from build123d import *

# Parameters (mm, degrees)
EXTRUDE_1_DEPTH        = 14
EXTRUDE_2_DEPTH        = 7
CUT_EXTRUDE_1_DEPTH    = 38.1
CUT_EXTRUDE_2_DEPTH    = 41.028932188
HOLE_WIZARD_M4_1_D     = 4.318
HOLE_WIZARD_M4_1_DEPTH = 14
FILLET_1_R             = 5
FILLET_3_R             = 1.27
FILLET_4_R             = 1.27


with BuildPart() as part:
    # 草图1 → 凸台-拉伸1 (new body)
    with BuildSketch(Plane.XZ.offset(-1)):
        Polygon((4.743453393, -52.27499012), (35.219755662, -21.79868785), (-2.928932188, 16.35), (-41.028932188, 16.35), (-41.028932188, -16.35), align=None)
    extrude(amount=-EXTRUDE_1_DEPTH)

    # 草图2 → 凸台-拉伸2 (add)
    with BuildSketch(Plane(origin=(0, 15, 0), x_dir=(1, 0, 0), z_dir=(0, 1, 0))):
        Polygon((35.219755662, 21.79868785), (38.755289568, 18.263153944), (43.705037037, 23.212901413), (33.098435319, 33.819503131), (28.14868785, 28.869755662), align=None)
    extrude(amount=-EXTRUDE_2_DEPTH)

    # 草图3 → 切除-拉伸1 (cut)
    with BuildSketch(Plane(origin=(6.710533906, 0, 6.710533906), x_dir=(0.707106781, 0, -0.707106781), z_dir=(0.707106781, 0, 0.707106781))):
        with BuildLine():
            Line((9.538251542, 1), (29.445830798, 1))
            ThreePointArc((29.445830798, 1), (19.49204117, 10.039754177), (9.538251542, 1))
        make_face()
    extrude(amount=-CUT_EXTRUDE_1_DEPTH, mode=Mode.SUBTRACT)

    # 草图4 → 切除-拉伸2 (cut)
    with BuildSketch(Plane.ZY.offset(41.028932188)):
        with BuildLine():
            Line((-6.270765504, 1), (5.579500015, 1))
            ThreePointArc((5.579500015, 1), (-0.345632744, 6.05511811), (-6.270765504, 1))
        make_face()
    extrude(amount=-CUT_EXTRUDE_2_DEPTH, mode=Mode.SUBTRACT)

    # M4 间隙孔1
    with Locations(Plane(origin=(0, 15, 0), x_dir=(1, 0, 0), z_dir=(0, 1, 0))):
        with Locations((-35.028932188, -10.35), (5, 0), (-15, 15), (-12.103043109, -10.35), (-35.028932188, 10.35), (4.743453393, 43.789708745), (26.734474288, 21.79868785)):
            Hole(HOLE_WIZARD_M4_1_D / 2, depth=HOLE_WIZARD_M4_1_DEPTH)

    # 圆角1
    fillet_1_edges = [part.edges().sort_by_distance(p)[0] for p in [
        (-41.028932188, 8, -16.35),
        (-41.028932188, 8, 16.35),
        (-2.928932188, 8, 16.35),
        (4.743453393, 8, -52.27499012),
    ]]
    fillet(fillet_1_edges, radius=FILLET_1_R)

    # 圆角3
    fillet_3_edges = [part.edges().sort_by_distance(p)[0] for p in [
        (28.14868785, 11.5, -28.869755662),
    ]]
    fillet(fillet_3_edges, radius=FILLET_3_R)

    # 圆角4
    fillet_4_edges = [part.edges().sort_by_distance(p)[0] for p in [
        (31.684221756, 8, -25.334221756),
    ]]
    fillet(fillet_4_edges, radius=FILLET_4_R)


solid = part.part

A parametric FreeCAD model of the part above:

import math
import FreeCAD as App
import Part
import Sketcher
Q = App.Units.Quantity


def edges_at(feature, points):
    """Names of the edges that pass closest to the given points."""
    edges = feature.Shape.Edges
    near = lambda p: min(range(len(edges)), key=lambda i: edges[i].distToShape(Part.Vertex(*p))[0])
    return sorted({f"Edge{near(p) + 1}" for p in points})

doc = App.newDocument("Part")
params = doc.addObject("Spreadsheet::Sheet", "Params")
for row, (alias, value) in enumerate([
    ("sketch1_width", "38.1 mm"),
    ("sketch1_height", "32.7 mm"),
    ("sketch1_length", "43.1 mm"),
    ("pad1_length", "14 mm"),
    ("sketch2_length", "7 mm"),
    ("sketch2_length2", "15 mm"),
    ("pad2_length", "7 mm"),
    ("sketch3_radius", "10 mm"),
    ("pocket1_length", "38.1 mm"),
    ("sketch4_radius", "6 mm"),
    ("pocket2_length", "41.028932 mm"),
    ("hole_diameter", "4.318 mm"),
    ("hole_depth", "14 mm"),
    ("fillet_radius", "5 mm"),
    ("fillet2_radius", "1.27 mm"),
    ("fillet3_radius", "1.27 mm"),
], start=1):
    params.set(f"A{row}", alias)
    params.set(f"B{row}", "=" + value)
    params.setAlias(f"B{row}", alias)

body = doc.addObject("PartDesign::Body", "Body")

sketch1 = body.newObject("Sketcher::SketchObject", "Sketch")
sketch1.AttachmentSupport = (doc.getObject("XZ_Plane"), [""])
sketch1.MapMode = "FlatFace"
sketch1.AttachmentOffset = App.Placement(App.Vector(0, 0, -1), App.Rotation())
sketch1.addGeometry([
    Part.LineSegment(App.Vector(5, -52, 0), App.Vector(35, -22, 0)),
    Part.LineSegment(App.Vector(35, -22, 0), App.Vector(-3, 16, 0)),
    Part.LineSegment(App.Vector(-3, 16, 0), App.Vector(-41, 16, 0)),
    Part.LineSegment(App.Vector(-41, 16, 0), App.Vector(-41, -16, 0)),
    Part.LineSegment(App.Vector(-41, -16, 0), App.Vector(5, -52, 0)),
], False)
sketch1.addConstraint([
    Sketcher.Constraint("Coincident", 0, 2, 1, 1),
    Sketcher.Constraint("Coincident", 1, 2, 2, 1),
    Sketcher.Constraint("Coincident", 2, 2, 3, 1),
    Sketcher.Constraint("Coincident", 3, 2, 4, 1),
    Sketcher.Constraint("Coincident", 4, 2, 0, 1),
    Sketcher.Constraint("Horizontal", 2),
    Sketcher.Constraint("Vertical", 3),
    Sketcher.Constraint("Perpendicular", 0, 1),
    Sketcher.Constraint("Angle", 0, Q("45 deg")),
    Sketcher.Constraint("DistanceX", 2, 2, 2, 1, Q("38.1 mm")),
    Sketcher.Constraint("DistanceY", 3, 2, 3, 1, Q("32.7 mm")),
    Sketcher.Constraint("Distance", 0, Q("43.1 mm")),
    Sketcher.Constraint("DistanceY", -1, 1, 1, 2, Q("16.35 mm")),
    Sketcher.Constraint("Distance", 1, Q("53.950392 mm")),
    Sketcher.Constraint("DistanceX", -1, 1, 0, 2, Q("35.219756 mm")),
])
sketch1.setExpression("Constraints[9]", "Params.sketch1_width")
sketch1.setExpression("Constraints[10]", "Params.sketch1_height")
sketch1.setExpression("Constraints[11]", "Params.sketch1_length")
pad1 = body.newObject("PartDesign::Pad", "Pad")
pad1.Profile = sketch1
pad1.setExpression("Length", "Params.pad1_length")
pad1.Reversed = True

sketch2 = body.newObject("Sketcher::SketchObject", "Sketch001")
sketch2.AttachmentSupport = (doc.getObject("XZ_Plane"), [""])
sketch2.MapMode = "FlatFace"
sketch2.AttachmentOffset = App.Placement(App.Vector(0, 0, -15), App.Rotation())
sketch2.addGeometry([
    Part.LineSegment(App.Vector(39, -18, 0), App.Vector(44, -23, 0)),
    Part.LineSegment(App.Vector(44, -23, 0), App.Vector(33, -34, 0)),
    Part.LineSegment(App.Vector(33, -34, 0), App.Vector(28, -29, 0)),
    Part.LineSegment(App.Vector(28, -29, 0), App.Vector(39, -18, 0)),
], False)
sketch2.addConstraint([
    Sketcher.Constraint("Coincident", 0, 2, 1, 1),
    Sketcher.Constraint("Coincident", 1, 2, 2, 1),
    Sketcher.Constraint("Coincident", 2, 2, 3, 1),
    Sketcher.Constraint("Coincident", 3, 2, 0, 1),
    Sketcher.Constraint("Perpendicular", 0, 1),
    Sketcher.Constraint("Perpendicular", 1, 2),
    Sketcher.Constraint("Perpendicular", 2, 3),
    Sketcher.Constraint("Angle", 0, Q("-45 deg")),
    Sketcher.Constraint("Distance", 0, Q("7 mm")),
    Sketcher.Constraint("Distance", 1, Q("15 mm")),
    Sketcher.Constraint("DistanceY", 0, 2, -1, 1, Q("23.212901 mm")),
    Sketcher.Constraint("DistanceX", -1, 1, 3, 2, Q("38.75529 mm")),
])
sketch2.setExpression("Constraints[8]", "Params.sketch2_length")
sketch2.setExpression("Constraints[9]", "Params.sketch2_length2")
pad2 = body.newObject("PartDesign::Pad", "Pad001")
pad2.Profile = sketch2
pad2.setExpression("Length", "Params.pad2_length")

sketch3 = body.newObject("Sketcher::SketchObject", "Sketch002")
sketch3.Placement = App.Placement(App.Vector(6.710534, 0, 6.710534), App.Rotation(App.Vector(0.707106781, 0, -0.707106781), App.Vector(0, 0.999999999, 0), App.Vector(0.707106781, 0, 0.707106781), "ZXY"))
sketch3.addGeometry([
    Part.LineSegment(App.Vector(10, 1, 0), App.Vector(29, 1, 0)),
    Part.ArcOfCircle(Part.Circle(App.Vector(19, 0, 0), App.Vector(0, 0, 1), 10), math.radians(6), math.radians(174)),
], False)
sketch3.addConstraint([
    Sketcher.Constraint("Coincident", 0, 1, 1, 2),
    Sketcher.Constraint("Coincident", 1, 1, 0, 2),
    Sketcher.Constraint("Horizontal", 0),
    Sketcher.Constraint("Radius", 1, Q("10 mm")),
    Sketcher.Constraint("DistanceY", -1, 1, 0, 1, Q("1 mm")),
    Sketcher.Constraint("DistanceX", 0, 1, 0, 2, Q("19.907579 mm")),
    Sketcher.Constraint("DistanceX", -1, 1, 1, 3, Q("19.492041 mm")),
])
sketch3.setExpression("Constraints[3]", "Params.sketch3_radius")
pocket1 = body.newObject("PartDesign::Pocket", "Pocket")
pocket1.Profile = sketch3
pocket1.setExpression("Length", "Params.pocket1_length")

sketch4 = body.newObject("Sketcher::SketchObject", "Sketch003")
sketch4.AttachmentSupport = (doc.getObject("YZ_Plane"), [""])
sketch4.MapMode = "FlatFace"
sketch4.AttachmentOffset = App.Placement(App.Vector(0, 0, -41.028932), App.Rotation())
sketch4.addGeometry([
    Part.LineSegment(App.Vector(1, -6, 0), App.Vector(1, 6, 0)),
    Part.ArcOfCircle(Part.Circle(App.Vector(0, 0, 0), App.Vector(0, 0, 1), 6), math.radians(-81), math.radians(81)),
], False)
sketch4.addConstraint([
    Sketcher.Constraint("Coincident", 0, 1, 1, 1),
    Sketcher.Constraint("Coincident", 1, 2, 0, 2),
    Sketcher.Constraint("Vertical", 0),
    Sketcher.Constraint("Radius", 1, Q("6 mm")),
    Sketcher.Constraint("DistanceX", -1, 1, 0, 1, Q("1 mm")),
    Sketcher.Constraint("DistanceY", -1, 1, 1, 2, Q("5.5795 mm")),
    Sketcher.Constraint("DistanceY", 0, 1, 0, 2, Q("11.850266 mm")),
])
sketch4.setExpression("Constraints[3]", "Params.sketch4_radius")
pocket2 = body.newObject("PartDesign::Pocket", "Pocket001")
pocket2.Profile = sketch4
pocket2.setExpression("Length", "Params.pocket2_length")
pocket2.Reversed = True

sketch5 = body.newObject("Sketcher::SketchObject", "Sketch004")
sketch5.AttachmentSupport = (doc.getObject("XZ_Plane"), [""])
sketch5.MapMode = "FlatFace"
sketch5.AttachmentOffset = App.Placement(App.Vector(0, 0, -15), App.Rotation())
sketch5.addGeometry([
    Part.Circle(App.Vector(-35, 10.3, 0), App.Vector(0, 0, 1), 2.2),
    Part.Circle(App.Vector(5, 0, 0), App.Vector(0, 0, 1), 2.2),
    Part.Circle(App.Vector(-15, -15, 0), App.Vector(0, 0, 1), 2.2),
    Part.Circle(App.Vector(-12.1, 10.3, 0), App.Vector(0, 0, 1), 2.2),
    Part.Circle(App.Vector(-35, -10.3, 0), App.Vector(0, 0, 1), 2.2),
    Part.Circle(App.Vector(4.7, -43.8, 0), App.Vector(0, 0, 1), 2.2),
    Part.Circle(App.Vector(26.7, -21.8, 0), App.Vector(0, 0, 1), 2.2),
], False)
sketch5.addConstraint([
    Sketcher.Constraint("Equal", 0, 1),
    Sketcher.Constraint("Equal", 1, 2),
    Sketcher.Constraint("Equal", 2, 3),
    Sketcher.Constraint("Equal", 3, 4),
    Sketcher.Constraint("Equal", 4, 5),
    Sketcher.Constraint("Equal", 5, 6),
    Sketcher.Constraint("Symmetric", 0, 3, 4, 3, -1),
    Sketcher.Constraint("PointOnObject", 1, 3, -1),
    Sketcher.Constraint("Horizontal", 0, 3, 3, 3),
    Sketcher.Constraint("Diameter", 0, Q("4.318 mm")),
    Sketcher.Constraint("DistanceX", -1, 1, 1, 3, Q("5 mm")),
    Sketcher.Constraint("DistanceX", 2, 3, -1, 1, Q("15 mm")),
    Sketcher.Constraint("DistanceY", 2, 3, -1, 1, Q("15 mm")),
    Sketcher.Constraint("DistanceY", 4, 3, 0, 3, Q("20.7 mm")),
    Sketcher.Constraint("DistanceY", 5, 3, -1, 1, Q("43.789709 mm")),
    Sketcher.Constraint("DistanceX", 0, 3, 3, 3, Q("22.925889 mm")),
    Sketcher.Constraint("DistanceX", 5, 3, 6, 3, Q("21.991021 mm")),
    Sketcher.Constraint("DistanceY", 5, 3, 6, 3, Q("21.991021 mm")),
    Sketcher.Constraint("DistanceX", 0, 3, -1, 1, Q("35.028932 mm")),
    Sketcher.Constraint("DistanceX", -1, 1, 5, 3, Q("4.743453 mm")),
])
doc.recompute()
hole = body.newObject("PartDesign::Hole", "Hole")
hole.Profile = sketch5
hole.ThreadType = "None"
hole.setExpression("Diameter", "Params.hole_diameter")
hole.DepthType = "Dimension"
hole.setExpression("Depth", "Params.hole_depth")
hole.DrillPoint = "Flat"
hole.Reversed = True
doc.recompute()

fillet = body.newObject("PartDesign::Fillet", "Fillet")
fillet.Base = (hole, edges_at(hole, [
    (-41.029, 8, -16.35),
    (-41.029, 8, 16.35),
    (-2.929, 8, 16.35),
    (4.743, 8, -52.275),
]))
fillet.setExpression("Radius", "Params.fillet_radius")
doc.recompute()

fillet2 = body.newObject("PartDesign::Fillet", "Fillet001")
fillet2.Base = (fillet, edges_at(fillet, [(28.149, 11.5, -28.87)]))
fillet2.setExpression("Radius", "Params.fillet2_radius")
doc.recompute()

fillet3 = body.newObject("PartDesign::Fillet", "Fillet002")
fillet3.Base = (fillet2, edges_at(fillet2, [(31.684, 8, -25.334)]))
fillet3.setExpression("Radius", "Params.fillet3_radius")

doc.recompute()
